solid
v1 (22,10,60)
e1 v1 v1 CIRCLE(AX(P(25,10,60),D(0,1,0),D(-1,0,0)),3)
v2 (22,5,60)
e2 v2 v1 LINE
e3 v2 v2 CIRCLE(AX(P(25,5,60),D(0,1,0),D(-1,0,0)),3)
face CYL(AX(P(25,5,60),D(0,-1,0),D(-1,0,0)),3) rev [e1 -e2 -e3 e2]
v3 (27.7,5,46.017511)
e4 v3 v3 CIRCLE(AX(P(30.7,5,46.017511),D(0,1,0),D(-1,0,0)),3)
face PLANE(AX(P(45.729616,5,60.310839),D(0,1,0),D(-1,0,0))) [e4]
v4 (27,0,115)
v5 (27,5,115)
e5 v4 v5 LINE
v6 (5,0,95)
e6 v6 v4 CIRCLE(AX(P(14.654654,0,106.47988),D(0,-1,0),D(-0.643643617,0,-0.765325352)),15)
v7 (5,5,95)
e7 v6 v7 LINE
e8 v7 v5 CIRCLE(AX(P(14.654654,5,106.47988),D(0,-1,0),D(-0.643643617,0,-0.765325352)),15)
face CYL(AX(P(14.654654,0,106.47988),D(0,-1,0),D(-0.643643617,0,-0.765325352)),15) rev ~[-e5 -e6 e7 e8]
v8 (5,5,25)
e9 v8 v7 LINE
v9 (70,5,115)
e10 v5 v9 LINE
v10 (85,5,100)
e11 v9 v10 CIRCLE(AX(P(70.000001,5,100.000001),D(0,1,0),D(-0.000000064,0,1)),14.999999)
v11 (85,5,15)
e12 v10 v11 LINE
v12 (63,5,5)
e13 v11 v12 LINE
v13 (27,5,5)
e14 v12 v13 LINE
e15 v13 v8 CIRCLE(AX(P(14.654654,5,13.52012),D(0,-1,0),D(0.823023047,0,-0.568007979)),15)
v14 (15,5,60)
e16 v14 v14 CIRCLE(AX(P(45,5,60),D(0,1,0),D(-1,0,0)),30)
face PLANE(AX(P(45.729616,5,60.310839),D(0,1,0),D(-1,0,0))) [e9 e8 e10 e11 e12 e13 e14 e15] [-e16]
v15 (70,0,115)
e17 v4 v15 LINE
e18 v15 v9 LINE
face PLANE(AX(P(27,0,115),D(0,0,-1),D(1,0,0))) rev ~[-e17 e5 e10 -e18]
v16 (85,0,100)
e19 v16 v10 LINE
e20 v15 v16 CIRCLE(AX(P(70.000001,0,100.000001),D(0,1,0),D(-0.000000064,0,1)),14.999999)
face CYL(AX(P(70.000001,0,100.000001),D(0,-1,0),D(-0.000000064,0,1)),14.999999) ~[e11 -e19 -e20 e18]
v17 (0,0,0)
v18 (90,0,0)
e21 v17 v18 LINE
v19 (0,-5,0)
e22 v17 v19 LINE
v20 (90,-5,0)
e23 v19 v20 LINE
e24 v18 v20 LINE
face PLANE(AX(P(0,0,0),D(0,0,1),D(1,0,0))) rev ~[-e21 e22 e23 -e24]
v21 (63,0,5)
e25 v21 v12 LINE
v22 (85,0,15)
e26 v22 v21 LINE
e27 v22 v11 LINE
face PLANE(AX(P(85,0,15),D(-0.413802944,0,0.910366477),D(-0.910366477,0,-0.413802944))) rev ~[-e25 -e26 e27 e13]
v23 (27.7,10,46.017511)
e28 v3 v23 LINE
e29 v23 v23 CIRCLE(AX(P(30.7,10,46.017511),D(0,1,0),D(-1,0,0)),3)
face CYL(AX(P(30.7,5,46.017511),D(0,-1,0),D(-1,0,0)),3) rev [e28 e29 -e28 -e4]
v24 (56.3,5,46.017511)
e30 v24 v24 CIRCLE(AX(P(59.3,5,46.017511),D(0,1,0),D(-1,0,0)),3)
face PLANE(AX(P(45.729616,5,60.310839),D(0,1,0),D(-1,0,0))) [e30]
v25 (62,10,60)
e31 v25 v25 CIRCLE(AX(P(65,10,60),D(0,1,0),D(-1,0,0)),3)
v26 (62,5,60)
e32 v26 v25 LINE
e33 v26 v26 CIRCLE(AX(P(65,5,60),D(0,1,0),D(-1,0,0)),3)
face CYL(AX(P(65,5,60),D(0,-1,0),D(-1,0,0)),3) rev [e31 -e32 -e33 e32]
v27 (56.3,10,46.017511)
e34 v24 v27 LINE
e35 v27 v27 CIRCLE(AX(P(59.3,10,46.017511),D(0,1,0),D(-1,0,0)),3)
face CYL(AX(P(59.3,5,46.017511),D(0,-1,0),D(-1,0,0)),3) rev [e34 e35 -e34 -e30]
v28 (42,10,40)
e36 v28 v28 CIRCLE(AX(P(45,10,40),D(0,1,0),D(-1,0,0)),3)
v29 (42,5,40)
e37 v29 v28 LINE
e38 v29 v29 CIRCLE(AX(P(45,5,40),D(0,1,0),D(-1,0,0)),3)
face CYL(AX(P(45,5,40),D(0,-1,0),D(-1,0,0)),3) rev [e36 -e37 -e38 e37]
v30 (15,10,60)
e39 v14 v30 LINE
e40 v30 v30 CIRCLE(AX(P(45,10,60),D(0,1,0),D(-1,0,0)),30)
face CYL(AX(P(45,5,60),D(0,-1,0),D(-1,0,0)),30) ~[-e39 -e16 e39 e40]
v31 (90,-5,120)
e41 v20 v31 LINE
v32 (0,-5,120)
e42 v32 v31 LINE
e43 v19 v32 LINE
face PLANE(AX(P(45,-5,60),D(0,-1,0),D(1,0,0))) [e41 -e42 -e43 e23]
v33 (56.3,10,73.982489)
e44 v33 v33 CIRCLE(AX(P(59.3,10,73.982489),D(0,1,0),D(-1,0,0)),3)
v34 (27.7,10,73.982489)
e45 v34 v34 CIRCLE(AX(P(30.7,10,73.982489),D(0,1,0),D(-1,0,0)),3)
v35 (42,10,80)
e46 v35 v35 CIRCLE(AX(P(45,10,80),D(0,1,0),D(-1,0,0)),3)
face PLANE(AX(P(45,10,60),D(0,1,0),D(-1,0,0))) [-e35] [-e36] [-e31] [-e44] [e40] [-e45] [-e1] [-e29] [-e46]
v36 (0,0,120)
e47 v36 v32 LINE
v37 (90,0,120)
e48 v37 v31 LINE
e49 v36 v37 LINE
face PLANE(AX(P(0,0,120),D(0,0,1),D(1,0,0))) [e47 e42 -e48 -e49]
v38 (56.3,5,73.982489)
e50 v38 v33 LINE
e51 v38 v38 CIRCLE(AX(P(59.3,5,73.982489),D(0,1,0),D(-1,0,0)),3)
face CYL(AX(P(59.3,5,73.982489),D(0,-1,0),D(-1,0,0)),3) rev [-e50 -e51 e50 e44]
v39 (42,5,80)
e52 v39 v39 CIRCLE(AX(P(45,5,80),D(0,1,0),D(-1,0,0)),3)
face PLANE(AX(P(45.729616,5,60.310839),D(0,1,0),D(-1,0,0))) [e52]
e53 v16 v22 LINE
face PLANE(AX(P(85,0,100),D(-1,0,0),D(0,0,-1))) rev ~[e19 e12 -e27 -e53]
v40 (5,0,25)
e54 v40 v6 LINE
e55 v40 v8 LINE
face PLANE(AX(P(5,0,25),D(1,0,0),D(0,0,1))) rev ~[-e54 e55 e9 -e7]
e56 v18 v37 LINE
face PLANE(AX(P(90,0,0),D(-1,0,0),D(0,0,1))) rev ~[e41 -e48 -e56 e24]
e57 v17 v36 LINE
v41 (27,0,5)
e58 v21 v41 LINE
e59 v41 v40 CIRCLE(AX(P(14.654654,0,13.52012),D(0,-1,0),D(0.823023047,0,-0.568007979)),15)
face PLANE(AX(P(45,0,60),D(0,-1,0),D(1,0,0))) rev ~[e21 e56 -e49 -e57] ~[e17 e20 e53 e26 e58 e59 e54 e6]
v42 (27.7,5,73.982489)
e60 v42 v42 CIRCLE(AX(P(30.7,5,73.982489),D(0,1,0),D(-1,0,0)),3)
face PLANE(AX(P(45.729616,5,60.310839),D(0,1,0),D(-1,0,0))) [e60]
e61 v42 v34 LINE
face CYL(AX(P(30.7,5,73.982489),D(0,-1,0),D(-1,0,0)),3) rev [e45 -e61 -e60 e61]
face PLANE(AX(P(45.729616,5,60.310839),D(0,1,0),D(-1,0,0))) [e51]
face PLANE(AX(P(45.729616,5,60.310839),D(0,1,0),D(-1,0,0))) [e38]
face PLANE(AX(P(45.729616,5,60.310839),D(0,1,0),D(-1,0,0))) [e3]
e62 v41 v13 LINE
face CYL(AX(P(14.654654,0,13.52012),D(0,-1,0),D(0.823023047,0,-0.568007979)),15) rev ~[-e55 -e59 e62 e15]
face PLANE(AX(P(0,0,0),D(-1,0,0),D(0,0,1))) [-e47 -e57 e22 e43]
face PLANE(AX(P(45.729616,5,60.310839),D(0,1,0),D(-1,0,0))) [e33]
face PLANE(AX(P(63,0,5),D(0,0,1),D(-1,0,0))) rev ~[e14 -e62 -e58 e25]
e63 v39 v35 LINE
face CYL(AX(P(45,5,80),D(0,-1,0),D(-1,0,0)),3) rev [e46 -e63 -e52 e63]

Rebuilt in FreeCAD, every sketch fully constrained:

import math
import FreeCAD as App
import Part
import Sketcher


def add_polygon(sketch, points):
    """Adds a closed chain of lines whose ends are joined by coincident constraints."""
    first, n = sketch.GeometryCount, len(points)
    for a, b in zip(points, points[1:] + points[:1]):
        sketch.addGeometry(Part.LineSegment(App.Vector(*a, 0), App.Vector(*b, 0)), False)
    for i in range(n):
        sketch.addConstraint(Sketcher.Constraint("Coincident", first + i, 2, first + (i + 1) % n, 1))

doc = App.newDocument("Part")
body = doc.addObject("PartDesign::Body", "Body")

# Sketch on XZ plane
sketch1 = doc.addObject("Sketcher::SketchObject", "Sketch")
body.addObject(sketch1)
sketch1.AttachmentSupport = (doc.XZ_Plane, [""])
sketch1.MapMode = "FlatFace"
add_polygon(sketch1, [(0, 120), (0, 0), (90, 0), (90, 120)])  # lines 0-3
sketch1.addConstraint([
    Sketcher.Constraint("Vertical", 0),
    Sketcher.Constraint("Horizontal", 1),
    Sketcher.Constraint("Vertical", 2),
    Sketcher.Constraint("Horizontal", 3),
    Sketcher.Constraint("Coincident", 0, 2, -1, 1),
    Sketcher.Constraint("DistanceX", 1, 1, 1, 2, 90.0),
    Sketcher.Constraint("DistanceY", 0, 2, 0, 1, 120.0),
])
pad1 = doc.addObject("PartDesign::Pad", "Pad")
body.addObject(pad1)
pad1.Profile = sketch1
pad1.Length = 5

# Sketch on XZ plane
sketch2 = doc.addObject("Sketcher::SketchObject", "Sketch001")
body.addObject(sketch2)
sketch2.AttachmentSupport = (doc.XZ_Plane, [""])
sketch2.MapMode = "FlatFace"
sketch2.addGeometry([
    Part.LineSegment(App.Vector(85, 15, 0), App.Vector(63, 5, 0)),  # 0
    Part.LineSegment(App.Vector(63, 5, 0), App.Vector(27, 5, 0)),  # 1
    Part.ArcOfCircle(Part.Circle(App.Vector(15, 14, 0), App.Vector(0, 0, 1), 15), math.radians(-35), math.radians(130)),  # 2
    Part.LineSegment(App.Vector(5, 25, 0), App.Vector(5, 95, 0)),  # 3
    Part.ArcOfCircle(Part.Circle(App.Vector(15, 106, 0), App.Vector(0, 0, 1), 15), math.radians(-130), math.radians(35)),  # 4
    Part.LineSegment(App.Vector(27, 115, 0), App.Vector(70, 115, 0)),  # 5
    Part.ArcOfCircle(Part.Circle(App.Vector(70, 100, 0), App.Vector(0, 0, 1), 15), math.radians(0), math.radians(90)),  # 6
    Part.LineSegment(App.Vector(85, 100, 0), App.Vector(85, 15, 0)),  # 7
], False)
sketch2.addConstraint([
    Sketcher.Constraint("Coincident", 0, 2, 1, 1),
    Sketcher.Constraint("Coincident", 1, 2, 2, 1),
    Sketcher.Constraint("Coincident", 2, 2, 3, 1),
    Sketcher.Constraint("Coincident", 3, 2, 4, 1),
    Sketcher.Constraint("Coincident", 4, 2, 5, 1),
    Sketcher.Constraint("Tangent", 5, 2, 6, 2),
    Sketcher.Constraint("Tangent", 6, 1, 7, 1),
    Sketcher.Constraint("Coincident", 7, 2, 0, 1),
    Sketcher.Constraint("Horizontal", 1),
    Sketcher.Constraint("Vertical", 3),
    Sketcher.Constraint("Horizontal", 5),
    Sketcher.Constraint("Vertical", 7),
    Sketcher.Constraint("Equal", 2, 4),
    Sketcher.Constraint("Equal", 4, 6),
    Sketcher.Constraint("Vertical", 2, 3, 4, 3),
    Sketcher.Constraint("Vertical", 1, 2, 4, 2),
    Sketcher.Constraint("Radius", 2, 15.0),
    Sketcher.Constraint("DistanceX", 1, 2, 1, 1, 36.0),
    Sketcher.Constraint("DistanceX", 5, 1, 5, 2, 43.0),
    Sketcher.Constraint("DistanceY", 3, 1, 3, 2, 70.0),
    Sketcher.Constraint("DistanceY", 7, 2, 7, 1, 85.0),
    Sketcher.Constraint("DistanceX", -1, 1, 6, 3, 70.000001),
    Sketcher.Constraint("DistanceY", -1, 1, 6, 3, 100.000001),
    Sketcher.Constraint("DistanceY", -1, 1, 0, 2, 5.0),
    Sketcher.Constraint("DistanceX", -1, 1, 2, 2, 5.0),
])
pad2 = doc.addObject("PartDesign::Pad", "Pad001")
body.addObject(pad2)
pad2.Profile = sketch2
pad2.Length = 5
pad2.Reversed = True

# Sketch on XZ plane
sketch3 = doc.addObject("Sketcher::SketchObject", "Sketch002")
body.addObject(sketch3)
sketch3.AttachmentSupport = (doc.XZ_Plane, [""])
sketch3.MapMode = "FlatFace"
sketch3.AttachmentOffset = App.Placement(App.Vector(0, 0, -5), App.Rotation())
sketch3.addGeometry([
    Part.Circle(App.Vector(45, 60, 0), App.Vector(0, 0, 1), 30),  # 0
    Part.Circle(App.Vector(59.3, 46, 0), App.Vector(0, 0, 1), 3),  # 1
    Part.Circle(App.Vector(45, 40, 0), App.Vector(0, 0, 1), 3),  # 2
    Part.Circle(App.Vector(30.7, 46, 0), App.Vector(0, 0, 1), 3),  # 3
    Part.Circle(App.Vector(65, 60, 0), App.Vector(0, 0, 1), 3),  # 4
    Part.Circle(App.Vector(59.3, 74, 0), App.Vector(0, 0, 1), 3),  # 5
    Part.Circle(App.Vector(25, 60, 0), App.Vector(0, 0, 1), 3),  # 6
    Part.Circle(App.Vector(45, 80, 0), App.Vector(0, 0, 1), 3),  # 7
    Part.Circle(App.Vector(30.7, 74, 0), App.Vector(0, 0, 1), 3),  # 8
], False)
sketch3.addConstraint([
    Sketcher.Constraint("Equal", 1, 2),
    Sketcher.Constraint("Equal", 2, 3),
    Sketcher.Constraint("Equal", 3, 4),
    Sketcher.Constraint("Equal", 4, 5),
    Sketcher.Constraint("Equal", 5, 6),
    Sketcher.Constraint("Equal", 6, 7),
    Sketcher.Constraint("Equal", 7, 8),
    Sketcher.Constraint("Horizontal", 1, 3, 3, 3),
    Sketcher.Constraint("Horizontal", 0, 3, 4, 3),
    Sketcher.Constraint("Horizontal", 4, 3, 6, 3),
    Sketcher.Constraint("Horizontal", 5, 3, 8, 3),
    Sketcher.Constraint("Vertical", 0, 3, 2, 3),
    Sketcher.Constraint("Vertical", 1, 3, 5, 3),
    Sketcher.Constraint("Vertical", 2, 3, 7, 3),
    Sketcher.Constraint("Vertical", 3, 3, 8, 3),
    Sketcher.Constraint("Diameter", 0, 60.0),
    Sketcher.Constraint("Diameter", 1, 6.0),
    Sketcher.Constraint("DistanceX", -1, 1, 0, 3, 45.0),
    Sketcher.Constraint("DistanceY", -1, 1, 0, 3, 60.0),
    Sketcher.Constraint("DistanceY", -1, 1, 2, 3, 40.0),
    Sketcher.Constraint("DistanceX", -1, 1, 4, 3, 65.0),
    Sketcher.Constraint("DistanceX", -1, 1, 6, 3, 25.0),
    Sketcher.Constraint("DistanceY", -1, 1, 7, 3, 80.0),
    Sketcher.Constraint("DistanceX", -1, 1, 1, 3, 59.3),
    Sketcher.Constraint("DistanceX", -1, 1, 3, 3, 30.7),
    Sketcher.Constraint("DistanceY", -1, 1, 1, 3, 46.017511),
    Sketcher.Constraint("DistanceY", -1, 1, 5, 3, 73.982489),
])
pad3 = doc.addObject("PartDesign::Pad", "Pad002")
body.addObject(pad3)
pad3.Profile = sketch3
pad3.Length = 5
pad3.Reversed = True

doc.recompute()
